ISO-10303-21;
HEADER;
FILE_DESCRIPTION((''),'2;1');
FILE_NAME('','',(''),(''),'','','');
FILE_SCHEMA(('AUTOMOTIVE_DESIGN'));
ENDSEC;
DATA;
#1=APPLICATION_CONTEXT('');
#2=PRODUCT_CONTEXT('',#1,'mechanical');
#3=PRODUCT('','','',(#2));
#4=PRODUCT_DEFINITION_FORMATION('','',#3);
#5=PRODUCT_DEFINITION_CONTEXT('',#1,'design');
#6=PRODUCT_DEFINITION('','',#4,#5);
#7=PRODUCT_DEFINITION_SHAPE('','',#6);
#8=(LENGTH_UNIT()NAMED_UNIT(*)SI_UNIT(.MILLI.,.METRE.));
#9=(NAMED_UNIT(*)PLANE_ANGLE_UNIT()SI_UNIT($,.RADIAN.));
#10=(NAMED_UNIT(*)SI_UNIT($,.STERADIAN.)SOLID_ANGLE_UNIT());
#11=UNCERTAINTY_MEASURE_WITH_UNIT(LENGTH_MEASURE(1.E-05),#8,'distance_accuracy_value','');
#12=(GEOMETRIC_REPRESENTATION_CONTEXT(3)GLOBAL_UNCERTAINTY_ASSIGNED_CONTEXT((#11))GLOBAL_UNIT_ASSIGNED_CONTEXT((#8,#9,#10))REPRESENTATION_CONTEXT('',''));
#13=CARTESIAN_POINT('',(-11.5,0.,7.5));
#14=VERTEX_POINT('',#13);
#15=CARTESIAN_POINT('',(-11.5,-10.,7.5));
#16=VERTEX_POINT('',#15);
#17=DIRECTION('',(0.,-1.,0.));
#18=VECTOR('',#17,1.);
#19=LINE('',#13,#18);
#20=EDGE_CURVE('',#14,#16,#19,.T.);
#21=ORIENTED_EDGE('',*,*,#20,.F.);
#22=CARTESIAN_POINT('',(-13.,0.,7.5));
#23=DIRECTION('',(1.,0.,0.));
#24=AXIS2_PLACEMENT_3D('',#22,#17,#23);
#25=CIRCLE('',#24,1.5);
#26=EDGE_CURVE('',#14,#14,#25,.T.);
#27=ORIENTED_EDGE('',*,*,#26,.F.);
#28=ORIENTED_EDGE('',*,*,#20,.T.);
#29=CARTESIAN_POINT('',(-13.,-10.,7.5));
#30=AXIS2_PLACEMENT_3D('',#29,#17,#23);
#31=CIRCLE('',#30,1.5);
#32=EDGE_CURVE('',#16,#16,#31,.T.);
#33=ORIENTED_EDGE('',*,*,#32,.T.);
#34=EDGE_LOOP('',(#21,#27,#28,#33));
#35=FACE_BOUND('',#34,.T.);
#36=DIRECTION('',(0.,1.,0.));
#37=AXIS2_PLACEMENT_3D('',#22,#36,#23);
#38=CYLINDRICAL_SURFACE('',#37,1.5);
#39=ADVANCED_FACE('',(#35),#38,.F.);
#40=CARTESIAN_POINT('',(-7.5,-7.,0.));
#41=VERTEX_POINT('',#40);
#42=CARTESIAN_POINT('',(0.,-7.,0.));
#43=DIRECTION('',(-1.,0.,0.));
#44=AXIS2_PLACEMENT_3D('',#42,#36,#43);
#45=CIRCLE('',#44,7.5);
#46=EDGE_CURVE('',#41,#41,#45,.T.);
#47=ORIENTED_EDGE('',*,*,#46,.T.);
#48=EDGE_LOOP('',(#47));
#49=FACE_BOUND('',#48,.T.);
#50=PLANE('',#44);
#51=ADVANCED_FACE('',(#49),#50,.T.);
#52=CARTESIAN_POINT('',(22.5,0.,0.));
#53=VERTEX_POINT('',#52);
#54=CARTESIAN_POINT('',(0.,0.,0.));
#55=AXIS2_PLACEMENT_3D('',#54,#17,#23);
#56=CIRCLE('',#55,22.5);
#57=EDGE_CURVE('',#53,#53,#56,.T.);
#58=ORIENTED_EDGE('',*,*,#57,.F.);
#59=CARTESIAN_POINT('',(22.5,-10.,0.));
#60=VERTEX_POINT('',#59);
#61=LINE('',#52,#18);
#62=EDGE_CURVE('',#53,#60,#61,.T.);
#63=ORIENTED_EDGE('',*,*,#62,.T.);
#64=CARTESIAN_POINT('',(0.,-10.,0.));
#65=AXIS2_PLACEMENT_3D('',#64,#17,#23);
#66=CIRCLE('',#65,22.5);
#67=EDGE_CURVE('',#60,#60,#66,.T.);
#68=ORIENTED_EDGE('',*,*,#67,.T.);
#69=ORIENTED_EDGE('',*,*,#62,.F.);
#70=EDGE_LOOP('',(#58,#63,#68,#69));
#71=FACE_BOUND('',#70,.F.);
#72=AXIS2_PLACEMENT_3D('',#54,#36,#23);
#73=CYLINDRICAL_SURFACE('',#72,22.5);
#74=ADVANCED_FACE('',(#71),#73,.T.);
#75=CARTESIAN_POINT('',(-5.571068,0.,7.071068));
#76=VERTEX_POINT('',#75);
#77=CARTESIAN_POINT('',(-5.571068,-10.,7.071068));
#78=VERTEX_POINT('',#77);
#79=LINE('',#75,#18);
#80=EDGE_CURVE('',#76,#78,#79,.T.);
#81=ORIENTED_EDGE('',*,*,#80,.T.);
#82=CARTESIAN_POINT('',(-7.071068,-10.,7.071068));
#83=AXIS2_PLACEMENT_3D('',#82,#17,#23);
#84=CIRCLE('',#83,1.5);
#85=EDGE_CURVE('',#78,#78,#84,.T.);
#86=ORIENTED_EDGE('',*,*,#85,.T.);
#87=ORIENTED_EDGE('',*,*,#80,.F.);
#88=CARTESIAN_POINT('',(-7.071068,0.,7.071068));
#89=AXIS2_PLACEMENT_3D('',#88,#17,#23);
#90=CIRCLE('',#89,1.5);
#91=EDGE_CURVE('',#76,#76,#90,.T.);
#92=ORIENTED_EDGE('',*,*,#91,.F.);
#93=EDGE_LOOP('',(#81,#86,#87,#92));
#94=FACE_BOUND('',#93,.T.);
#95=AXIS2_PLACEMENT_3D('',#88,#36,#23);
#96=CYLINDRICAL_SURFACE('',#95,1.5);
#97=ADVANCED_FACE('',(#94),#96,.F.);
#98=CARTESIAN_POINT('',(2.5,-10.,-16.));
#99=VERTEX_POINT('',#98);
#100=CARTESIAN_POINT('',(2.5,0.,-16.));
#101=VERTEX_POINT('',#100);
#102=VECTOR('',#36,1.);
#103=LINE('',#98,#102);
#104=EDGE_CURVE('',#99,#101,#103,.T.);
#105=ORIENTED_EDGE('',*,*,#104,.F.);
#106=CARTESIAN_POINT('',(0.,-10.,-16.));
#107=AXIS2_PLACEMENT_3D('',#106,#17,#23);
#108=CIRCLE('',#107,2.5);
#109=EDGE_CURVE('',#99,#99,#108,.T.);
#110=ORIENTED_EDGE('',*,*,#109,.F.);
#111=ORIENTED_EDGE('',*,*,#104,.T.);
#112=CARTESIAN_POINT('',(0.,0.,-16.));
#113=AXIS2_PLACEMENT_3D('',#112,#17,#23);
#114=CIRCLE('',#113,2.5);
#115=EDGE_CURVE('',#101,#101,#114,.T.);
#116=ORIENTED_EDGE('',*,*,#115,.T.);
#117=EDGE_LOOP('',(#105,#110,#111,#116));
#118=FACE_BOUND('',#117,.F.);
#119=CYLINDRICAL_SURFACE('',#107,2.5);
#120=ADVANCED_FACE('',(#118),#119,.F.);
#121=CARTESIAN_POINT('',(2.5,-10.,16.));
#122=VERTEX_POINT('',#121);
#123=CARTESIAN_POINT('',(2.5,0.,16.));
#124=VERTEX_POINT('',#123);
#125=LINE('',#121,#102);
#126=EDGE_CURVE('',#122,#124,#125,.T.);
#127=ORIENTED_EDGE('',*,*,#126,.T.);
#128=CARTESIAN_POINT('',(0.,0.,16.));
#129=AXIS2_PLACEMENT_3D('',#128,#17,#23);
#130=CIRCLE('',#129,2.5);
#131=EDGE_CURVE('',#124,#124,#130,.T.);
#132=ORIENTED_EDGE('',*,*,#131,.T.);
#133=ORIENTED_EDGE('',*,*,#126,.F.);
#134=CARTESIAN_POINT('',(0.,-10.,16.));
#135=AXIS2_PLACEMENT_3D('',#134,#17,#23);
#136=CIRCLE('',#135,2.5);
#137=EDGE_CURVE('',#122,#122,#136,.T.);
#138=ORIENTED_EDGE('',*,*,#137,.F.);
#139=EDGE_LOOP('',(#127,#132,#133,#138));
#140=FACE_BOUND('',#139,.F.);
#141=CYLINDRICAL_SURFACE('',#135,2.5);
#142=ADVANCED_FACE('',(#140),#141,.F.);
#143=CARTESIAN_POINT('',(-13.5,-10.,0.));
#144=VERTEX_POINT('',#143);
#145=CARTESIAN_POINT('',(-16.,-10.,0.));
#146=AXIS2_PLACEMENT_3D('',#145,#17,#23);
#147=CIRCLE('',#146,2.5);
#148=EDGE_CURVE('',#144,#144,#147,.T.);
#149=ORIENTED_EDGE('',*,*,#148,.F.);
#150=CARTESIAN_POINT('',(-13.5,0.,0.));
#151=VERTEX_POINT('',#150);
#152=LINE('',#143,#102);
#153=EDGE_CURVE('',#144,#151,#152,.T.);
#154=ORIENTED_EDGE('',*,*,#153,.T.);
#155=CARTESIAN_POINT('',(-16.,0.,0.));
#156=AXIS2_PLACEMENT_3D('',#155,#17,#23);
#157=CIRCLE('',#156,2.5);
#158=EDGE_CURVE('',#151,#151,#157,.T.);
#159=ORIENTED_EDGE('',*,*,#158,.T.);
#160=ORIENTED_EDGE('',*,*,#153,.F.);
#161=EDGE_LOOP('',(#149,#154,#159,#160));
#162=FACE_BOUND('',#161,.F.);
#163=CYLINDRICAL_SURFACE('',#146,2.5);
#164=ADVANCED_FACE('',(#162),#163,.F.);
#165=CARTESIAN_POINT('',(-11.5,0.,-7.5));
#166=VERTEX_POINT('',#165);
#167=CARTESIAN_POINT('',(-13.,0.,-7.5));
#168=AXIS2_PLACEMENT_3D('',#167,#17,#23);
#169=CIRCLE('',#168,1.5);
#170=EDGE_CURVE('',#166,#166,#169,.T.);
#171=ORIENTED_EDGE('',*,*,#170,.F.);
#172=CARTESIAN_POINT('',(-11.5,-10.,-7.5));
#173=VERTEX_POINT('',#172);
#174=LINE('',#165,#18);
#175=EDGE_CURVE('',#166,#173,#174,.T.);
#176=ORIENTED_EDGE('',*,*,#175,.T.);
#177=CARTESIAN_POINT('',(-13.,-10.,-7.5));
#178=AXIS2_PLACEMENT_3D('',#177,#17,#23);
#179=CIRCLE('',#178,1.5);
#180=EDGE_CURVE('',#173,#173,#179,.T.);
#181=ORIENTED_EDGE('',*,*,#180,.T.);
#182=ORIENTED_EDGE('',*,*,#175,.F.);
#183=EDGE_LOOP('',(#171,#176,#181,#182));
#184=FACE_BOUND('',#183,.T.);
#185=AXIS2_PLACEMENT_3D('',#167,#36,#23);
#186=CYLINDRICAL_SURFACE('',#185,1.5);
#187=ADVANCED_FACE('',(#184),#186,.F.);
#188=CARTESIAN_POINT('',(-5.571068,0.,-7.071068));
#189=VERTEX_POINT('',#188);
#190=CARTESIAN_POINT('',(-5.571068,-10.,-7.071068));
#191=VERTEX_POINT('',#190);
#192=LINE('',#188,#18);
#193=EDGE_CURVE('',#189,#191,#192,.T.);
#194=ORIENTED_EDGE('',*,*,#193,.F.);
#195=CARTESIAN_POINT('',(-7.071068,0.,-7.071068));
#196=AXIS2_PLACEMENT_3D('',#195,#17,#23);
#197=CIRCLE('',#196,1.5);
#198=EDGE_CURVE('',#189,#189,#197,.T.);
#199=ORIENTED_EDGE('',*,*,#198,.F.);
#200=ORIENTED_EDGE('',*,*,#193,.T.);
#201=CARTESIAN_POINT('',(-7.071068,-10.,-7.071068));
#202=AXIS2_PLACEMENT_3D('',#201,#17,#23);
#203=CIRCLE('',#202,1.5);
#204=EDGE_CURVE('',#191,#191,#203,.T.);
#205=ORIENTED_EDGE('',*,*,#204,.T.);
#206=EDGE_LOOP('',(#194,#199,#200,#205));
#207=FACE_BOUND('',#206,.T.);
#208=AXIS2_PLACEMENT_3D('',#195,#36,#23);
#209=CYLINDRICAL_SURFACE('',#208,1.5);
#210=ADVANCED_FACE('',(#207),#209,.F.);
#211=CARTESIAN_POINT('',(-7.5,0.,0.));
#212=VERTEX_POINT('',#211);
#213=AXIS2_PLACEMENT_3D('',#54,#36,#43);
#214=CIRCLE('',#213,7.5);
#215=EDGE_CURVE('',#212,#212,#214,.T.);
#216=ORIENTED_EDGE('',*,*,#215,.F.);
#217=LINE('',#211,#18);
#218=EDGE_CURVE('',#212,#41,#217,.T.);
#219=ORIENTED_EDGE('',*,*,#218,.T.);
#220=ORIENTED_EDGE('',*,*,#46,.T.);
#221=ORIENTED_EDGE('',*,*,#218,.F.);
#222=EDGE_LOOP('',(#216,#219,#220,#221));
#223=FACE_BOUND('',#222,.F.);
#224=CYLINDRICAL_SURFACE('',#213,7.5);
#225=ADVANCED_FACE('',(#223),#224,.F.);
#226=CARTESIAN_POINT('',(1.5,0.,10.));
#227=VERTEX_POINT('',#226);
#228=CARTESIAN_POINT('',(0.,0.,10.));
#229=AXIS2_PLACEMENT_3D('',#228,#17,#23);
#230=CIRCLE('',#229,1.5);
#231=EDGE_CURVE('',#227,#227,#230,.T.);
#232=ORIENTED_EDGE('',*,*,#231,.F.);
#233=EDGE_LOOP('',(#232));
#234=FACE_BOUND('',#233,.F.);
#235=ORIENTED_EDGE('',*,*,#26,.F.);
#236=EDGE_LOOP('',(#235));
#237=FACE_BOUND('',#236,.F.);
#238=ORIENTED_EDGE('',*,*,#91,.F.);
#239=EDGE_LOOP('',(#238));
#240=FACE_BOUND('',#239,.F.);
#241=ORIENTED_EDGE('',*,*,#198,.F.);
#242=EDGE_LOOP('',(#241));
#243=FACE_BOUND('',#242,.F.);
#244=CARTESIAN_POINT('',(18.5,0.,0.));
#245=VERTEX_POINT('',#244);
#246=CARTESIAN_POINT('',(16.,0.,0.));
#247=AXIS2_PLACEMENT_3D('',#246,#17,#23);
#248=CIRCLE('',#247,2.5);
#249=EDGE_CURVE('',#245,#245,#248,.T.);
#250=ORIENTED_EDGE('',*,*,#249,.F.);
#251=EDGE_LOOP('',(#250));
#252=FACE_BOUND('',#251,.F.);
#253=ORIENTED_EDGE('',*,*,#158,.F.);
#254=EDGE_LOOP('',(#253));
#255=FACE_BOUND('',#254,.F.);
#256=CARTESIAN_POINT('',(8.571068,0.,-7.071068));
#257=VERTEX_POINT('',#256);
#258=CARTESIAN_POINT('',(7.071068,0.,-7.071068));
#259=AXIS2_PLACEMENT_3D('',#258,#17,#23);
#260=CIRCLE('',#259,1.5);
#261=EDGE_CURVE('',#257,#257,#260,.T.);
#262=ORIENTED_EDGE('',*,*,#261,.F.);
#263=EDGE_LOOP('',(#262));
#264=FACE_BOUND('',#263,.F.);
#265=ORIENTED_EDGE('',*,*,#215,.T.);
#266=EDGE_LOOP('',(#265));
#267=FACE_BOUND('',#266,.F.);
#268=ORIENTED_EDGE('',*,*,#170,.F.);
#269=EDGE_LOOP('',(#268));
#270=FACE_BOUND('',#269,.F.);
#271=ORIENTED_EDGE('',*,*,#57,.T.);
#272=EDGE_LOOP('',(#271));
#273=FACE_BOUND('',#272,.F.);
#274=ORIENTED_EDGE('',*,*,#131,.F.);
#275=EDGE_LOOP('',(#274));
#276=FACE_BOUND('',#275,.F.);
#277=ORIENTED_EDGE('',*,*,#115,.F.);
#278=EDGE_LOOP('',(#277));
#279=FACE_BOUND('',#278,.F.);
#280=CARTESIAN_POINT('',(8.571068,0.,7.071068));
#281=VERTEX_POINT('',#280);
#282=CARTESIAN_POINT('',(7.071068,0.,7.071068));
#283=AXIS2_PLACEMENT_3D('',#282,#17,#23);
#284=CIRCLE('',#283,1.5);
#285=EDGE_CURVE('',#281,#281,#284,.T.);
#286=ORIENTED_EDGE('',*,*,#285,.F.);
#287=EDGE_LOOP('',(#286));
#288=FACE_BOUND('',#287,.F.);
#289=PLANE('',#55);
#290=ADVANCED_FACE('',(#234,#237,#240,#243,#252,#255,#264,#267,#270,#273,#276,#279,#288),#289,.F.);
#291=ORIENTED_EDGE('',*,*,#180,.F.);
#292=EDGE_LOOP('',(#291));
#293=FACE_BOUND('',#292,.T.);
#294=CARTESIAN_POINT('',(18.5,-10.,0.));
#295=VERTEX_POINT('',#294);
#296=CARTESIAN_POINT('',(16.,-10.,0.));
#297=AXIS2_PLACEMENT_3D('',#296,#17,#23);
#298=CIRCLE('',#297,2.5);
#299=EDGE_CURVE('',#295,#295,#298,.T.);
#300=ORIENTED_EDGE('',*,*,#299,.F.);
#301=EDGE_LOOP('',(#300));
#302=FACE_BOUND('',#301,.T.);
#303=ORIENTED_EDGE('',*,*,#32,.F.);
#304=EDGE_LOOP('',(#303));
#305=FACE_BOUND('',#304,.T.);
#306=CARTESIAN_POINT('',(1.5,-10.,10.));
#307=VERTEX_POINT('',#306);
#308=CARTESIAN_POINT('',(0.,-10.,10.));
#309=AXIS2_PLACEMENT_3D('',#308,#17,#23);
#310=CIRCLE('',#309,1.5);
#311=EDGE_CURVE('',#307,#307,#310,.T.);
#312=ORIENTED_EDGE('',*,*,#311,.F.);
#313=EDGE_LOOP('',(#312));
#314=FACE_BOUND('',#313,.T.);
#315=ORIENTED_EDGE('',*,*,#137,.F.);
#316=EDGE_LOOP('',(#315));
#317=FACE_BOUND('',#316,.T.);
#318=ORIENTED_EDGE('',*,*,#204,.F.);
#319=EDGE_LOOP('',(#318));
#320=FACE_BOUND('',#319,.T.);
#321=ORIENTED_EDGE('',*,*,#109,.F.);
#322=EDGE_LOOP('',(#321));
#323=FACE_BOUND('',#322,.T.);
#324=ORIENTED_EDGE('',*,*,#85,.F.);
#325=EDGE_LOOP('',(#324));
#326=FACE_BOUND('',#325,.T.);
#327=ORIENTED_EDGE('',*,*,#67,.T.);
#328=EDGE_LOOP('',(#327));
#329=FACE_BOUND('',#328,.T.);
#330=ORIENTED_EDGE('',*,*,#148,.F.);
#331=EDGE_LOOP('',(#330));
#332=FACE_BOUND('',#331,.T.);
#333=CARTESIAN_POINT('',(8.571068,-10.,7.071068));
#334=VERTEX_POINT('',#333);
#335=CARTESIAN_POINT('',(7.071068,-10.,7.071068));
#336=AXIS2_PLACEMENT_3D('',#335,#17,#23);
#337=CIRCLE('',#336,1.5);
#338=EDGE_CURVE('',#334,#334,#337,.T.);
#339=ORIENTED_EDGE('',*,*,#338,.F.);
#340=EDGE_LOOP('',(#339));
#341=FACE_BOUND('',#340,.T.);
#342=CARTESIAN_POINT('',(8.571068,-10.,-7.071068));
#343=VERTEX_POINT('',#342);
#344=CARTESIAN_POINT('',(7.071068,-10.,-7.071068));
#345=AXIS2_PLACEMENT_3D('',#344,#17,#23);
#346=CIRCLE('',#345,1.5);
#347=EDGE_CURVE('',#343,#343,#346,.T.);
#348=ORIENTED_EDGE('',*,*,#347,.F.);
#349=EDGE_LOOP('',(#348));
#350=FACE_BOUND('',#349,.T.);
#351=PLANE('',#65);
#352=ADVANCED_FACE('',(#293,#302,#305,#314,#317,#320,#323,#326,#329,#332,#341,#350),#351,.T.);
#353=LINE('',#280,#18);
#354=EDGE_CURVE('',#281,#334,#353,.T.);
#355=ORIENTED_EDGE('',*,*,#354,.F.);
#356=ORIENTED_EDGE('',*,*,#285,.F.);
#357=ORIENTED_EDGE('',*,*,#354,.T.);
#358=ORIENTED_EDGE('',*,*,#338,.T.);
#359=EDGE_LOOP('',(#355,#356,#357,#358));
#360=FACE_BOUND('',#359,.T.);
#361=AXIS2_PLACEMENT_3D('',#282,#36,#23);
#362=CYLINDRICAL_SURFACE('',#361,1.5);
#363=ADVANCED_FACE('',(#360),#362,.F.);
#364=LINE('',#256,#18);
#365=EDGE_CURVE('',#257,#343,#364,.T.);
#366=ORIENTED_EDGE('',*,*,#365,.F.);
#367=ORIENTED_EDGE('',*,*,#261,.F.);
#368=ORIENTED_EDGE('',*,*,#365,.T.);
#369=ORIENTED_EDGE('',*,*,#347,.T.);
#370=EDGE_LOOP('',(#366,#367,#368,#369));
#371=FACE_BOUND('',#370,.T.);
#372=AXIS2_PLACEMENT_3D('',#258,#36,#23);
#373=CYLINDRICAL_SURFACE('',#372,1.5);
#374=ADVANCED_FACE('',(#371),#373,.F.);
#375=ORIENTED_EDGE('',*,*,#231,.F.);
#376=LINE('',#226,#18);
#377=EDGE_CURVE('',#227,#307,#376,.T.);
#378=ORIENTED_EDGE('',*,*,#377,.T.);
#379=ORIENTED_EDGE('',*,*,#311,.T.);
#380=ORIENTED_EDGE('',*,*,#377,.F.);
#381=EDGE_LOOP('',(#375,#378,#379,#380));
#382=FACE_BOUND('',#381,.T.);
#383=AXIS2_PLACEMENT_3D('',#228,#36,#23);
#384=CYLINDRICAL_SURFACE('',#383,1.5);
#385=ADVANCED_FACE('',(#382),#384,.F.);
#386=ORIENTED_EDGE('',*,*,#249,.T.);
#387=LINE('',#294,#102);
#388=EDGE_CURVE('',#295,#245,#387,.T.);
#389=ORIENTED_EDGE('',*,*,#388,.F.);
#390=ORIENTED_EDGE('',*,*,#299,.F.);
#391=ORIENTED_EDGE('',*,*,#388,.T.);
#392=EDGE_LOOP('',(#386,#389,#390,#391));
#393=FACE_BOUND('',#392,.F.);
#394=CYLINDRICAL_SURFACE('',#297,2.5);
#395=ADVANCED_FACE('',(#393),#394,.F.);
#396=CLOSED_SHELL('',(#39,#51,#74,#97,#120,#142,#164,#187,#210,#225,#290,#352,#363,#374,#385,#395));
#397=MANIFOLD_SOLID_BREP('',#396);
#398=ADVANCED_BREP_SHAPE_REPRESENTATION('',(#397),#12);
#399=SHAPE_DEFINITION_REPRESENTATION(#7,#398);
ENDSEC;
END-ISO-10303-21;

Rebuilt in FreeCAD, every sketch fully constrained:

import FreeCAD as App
import Part
import Sketcher

V = App.Vector
Q = App.Units.Quantity

doc = App.newDocument("Part")
params = doc.addObject("Spreadsheet::Sheet", "Params")
for row, (alias, value) in enumerate([
    ("sketch1_diameter", "45 mm"),
    ("sketch1_diameter2", "3 mm"),
    ("pad1_length", "10 mm"),
    ("sketch2_diameter", "15 mm"),
    ("pocket1_length", "7 mm"),
    ("sketch3_diameter", "5 mm"),
    ("pocket2_length", "25 mm"),
], start=1):
    params.set(f"A{row}", alias)
    params.set(f"B{row}", "=" + value)
    params.setAlias(f"B{row}", alias)

body = doc.addObject("PartDesign::Body", "Body")

sketch1 = body.newObject("Sketcher::SketchObject", "Sketch")
sketch1.AttachmentSupport = (doc.getObject("XZ_Plane"), [""])
sketch1.MapMode = "FlatFace"
sketch1.addGeometry(Part.Circle(V(0, 0, 0), V(0, 0, 1), 22.5), False)
sketch1.addGeometry(Part.Circle(V(-13, -7.5, 0), V(0, 0, 1), 1.5), False)
sketch1.addGeometry(Part.Circle(V(-7.1, -7.1, 0), V(0, 0, 1), 1.5), False)
sketch1.addGeometry(Part.Circle(V(7.1, -7.1, 0), V(0, 0, 1), 1.5), False)
sketch1.addGeometry(Part.Circle(V(-13, 7.5, 0), V(0, 0, 1), 1.5), False)
sketch1.addGeometry(Part.Circle(V(-7.1, 7.1, 0), V(0, 0, 1), 1.5), False)
sketch1.addGeometry(Part.Circle(V(0, 10, 0), V(0, 0, 1), 1.5), False)
sketch1.addGeometry(Part.Circle(V(7.1, 7.1, 0), V(0, 0, 1), 1.5), False)
sketch1.addConstraint(Sketcher.Constraint("Coincident", 0, 3, -1, 1))
sketch1.addConstraint(Sketcher.Constraint("Equal", 1, 2))
sketch1.addConstraint(Sketcher.Constraint("Equal", 2, 3))
sketch1.addConstraint(Sketcher.Constraint("Equal", 3, 4))
sketch1.addConstraint(Sketcher.Constraint("Equal", 4, 5))
sketch1.addConstraint(Sketcher.Constraint("Equal", 5, 6))
sketch1.addConstraint(Sketcher.Constraint("Equal", 6, 7))
sketch1.addConstraint(Sketcher.Constraint("Symmetric", 3, 3, 5, 3, -1, 1))
sketch1.addConstraint(Sketcher.Constraint("Symmetric", 2, 3, 7, 3, -1, 1))
sketch1.addConstraint(Sketcher.Constraint("Symmetric", 2, 3, 3, 3, -2))
sketch1.addConstraint(Sketcher.Constraint("Symmetric", 1, 3, 4, 3, -1))
sketch1.addConstraint(Sketcher.Constraint("PointOnObject", 6, 3, -2))
sketch1.addConstraint(Sketcher.Constraint("Diameter", 0, Q("45 mm")))
sketch1.addConstraint(Sketcher.Constraint("Diameter", 1, Q("3 mm")))
sketch1.addConstraint(Sketcher.Constraint("DistanceX", 1, 3, -1, 1, Q("13 mm")))
sketch1.addConstraint(Sketcher.Constraint("DistanceY", -1, 1, 6, 3, Q("10 mm")))
sketch1.addConstraint(Sketcher.Constraint("DistanceY", 1, 3, 4, 3, Q("15 mm")))
sketch1.addConstraint(Sketcher.Constraint("DistanceX", 2, 3, -1, 1, Q("7.071068 mm")))
sketch1.addConstraint(Sketcher.Constraint("DistanceY", 2, 3, -1, 1, Q("7.071068 mm")))
sketch1.setExpression("Constraints[12]", "Params.sketch1_diameter")
sketch1.setExpression("Constraints[13]", "Params.sketch1_diameter2")
pad1 = body.newObject("PartDesign::Pad", "Pad")
pad1.Profile = sketch1
pad1.setExpression("Length", "Params.pad1_length")

sketch2 = body.newObject("Sketcher::SketchObject", "Sketch001")
sketch2.AttachmentSupport = (doc.getObject("XZ_Plane"), [""])
sketch2.MapMode = "FlatFace"
sketch2.addGeometry(Part.Circle(V(0, 0, 0), V(0, 0, 1), 8), False)
sketch2.addConstraint(Sketcher.Constraint("Coincident", 0, 3, -1, 1))
sketch2.addConstraint(Sketcher.Constraint("Diameter", 0, Q("15 mm")))
sketch2.setExpression("Constraints[1]", "Params.sketch2_diameter")
pocket1 = body.newObject("PartDesign::Pocket", "Pocket")
pocket1.Profile = sketch2
pocket1.setExpression("Length", "Params.pocket1_length")
pocket1.Reversed = True

sketch3 = body.newObject("Sketcher::SketchObject", "Sketch002")
sketch3.AttachmentSupport = (doc.getObject("XZ_Plane"), [""])
sketch3.MapMode = "FlatFace"
sketch3.AttachmentOffset = App.Placement(V(0, 0, 10), App.Rotation())
sketch3.addGeometry(Part.Circle(V(0, 16, 0), V(0, 0, 1), 2.5), False)
sketch3.addGeometry(Part.Circle(V(16, 0, 0), V(0, 0, 1), 2.5), False)
sketch3.addGeometry(Part.Circle(V(0, -16, 0), V(0, 0, 1), 2.5), False)
sketch3.addGeometry(Part.Circle(V(-16, 0, 0), V(0, 0, 1), 2.5), False)
sketch3.addConstraint(Sketcher.Constraint("Equal", 0, 1))
sketch3.addConstraint(Sketcher.Constraint("Equal", 1, 2))
sketch3.addConstraint(Sketcher.Constraint("Equal", 2, 3))
sketch3.addConstraint(Sketcher.Constraint("Symmetric", 0, 3, 2, 3, -1, 1))
sketch3.addConstraint(Sketcher.Constraint("Symmetric", 1, 3, 3, 3, -1, 1))
sketch3.addConstraint(Sketcher.Constraint("PointOnObject", 0, 3, -2))
sketch3.addConstraint(Sketcher.Constraint("PointOnObject", 1, 3, -1))
sketch3.addConstraint(Sketcher.Constraint("Diameter", 0, Q("5 mm")))
sketch3.addConstraint(Sketcher.Constraint("DistanceY", -1, 1, 0, 3, Q("16 mm")))
sketch3.addConstraint(Sketcher.Constraint("DistanceX", -1, 1, 1, 3, Q("16 mm")))
sketch3.setExpression("Constraints[7]", "Params.sketch3_diameter")
pocket2 = body.newObject("PartDesign::Pocket", "Pocket001")
pocket2.Profile = sketch3
pocket2.setExpression("Length", "Params.pocket2_length")

doc.recompute()
